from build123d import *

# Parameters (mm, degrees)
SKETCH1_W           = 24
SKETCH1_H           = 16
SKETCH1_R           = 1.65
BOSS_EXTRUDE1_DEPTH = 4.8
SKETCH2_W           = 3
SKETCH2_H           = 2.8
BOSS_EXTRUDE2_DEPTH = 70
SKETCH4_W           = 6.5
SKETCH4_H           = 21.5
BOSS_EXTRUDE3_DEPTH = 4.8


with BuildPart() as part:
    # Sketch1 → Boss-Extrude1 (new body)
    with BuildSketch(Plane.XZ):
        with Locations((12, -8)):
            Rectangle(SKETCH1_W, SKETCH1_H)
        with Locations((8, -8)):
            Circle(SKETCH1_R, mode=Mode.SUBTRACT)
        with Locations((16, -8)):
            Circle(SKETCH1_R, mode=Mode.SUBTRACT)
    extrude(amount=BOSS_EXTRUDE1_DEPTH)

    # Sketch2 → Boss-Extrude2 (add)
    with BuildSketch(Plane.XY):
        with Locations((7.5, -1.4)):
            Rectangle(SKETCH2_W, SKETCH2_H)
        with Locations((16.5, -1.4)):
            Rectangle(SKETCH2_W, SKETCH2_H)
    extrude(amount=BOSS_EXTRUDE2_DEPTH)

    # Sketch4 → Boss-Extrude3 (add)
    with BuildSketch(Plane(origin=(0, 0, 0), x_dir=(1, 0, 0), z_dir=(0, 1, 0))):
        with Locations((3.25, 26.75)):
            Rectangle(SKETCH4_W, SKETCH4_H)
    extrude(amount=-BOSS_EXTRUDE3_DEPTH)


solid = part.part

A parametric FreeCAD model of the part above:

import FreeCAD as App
import Part
import Sketcher

doc = App.newDocument("Part")
body = doc.addObject("PartDesign::Body", "Body")

# Sketch on XZ plane
sketch1 = doc.addObject("Sketcher::SketchObject", "Sketch")
body.addObject(sketch1)
sketch1.AttachmentSupport = (doc.XZ_Plane, [""])
sketch1.MapMode = "FlatFace"
sketch1.addGeometry([
    Part.LineSegment(App.Vector(0, 0, 0), App.Vector(0, -16, 0)),  # 0
    Part.LineSegment(App.Vector(0, -16, 0), App.Vector(24, -16, 0)),  # 1
    Part.LineSegment(App.Vector(24, -16, 0), App.Vector(24, 0, 0)),  # 2
    Part.LineSegment(App.Vector(24, 0, 0), App.Vector(0, 0, 0)),  # 3
    Part.Circle(App.Vector(8, -8, 0), App.Vector(0, 0, 1), 1.6),  # 4
    Part.Circle(App.Vector(16, -8, 0), App.Vector(0, 0, 1), 1.6),  # 5
], False)
sketch1.addConstraint([
    Sketcher.Constraint("Coincident", 0, 2, 1, 1),
    Sketcher.Constraint("Coincident", 1, 2, 2, 1),
    Sketcher.Constraint("Coincident", 2, 2, 3, 1),
    Sketcher.Constraint("Coincident", 3, 2, 0, 1),
    Sketcher.Constraint("Vertical", 0),
    Sketcher.Constraint("Horizontal", 1),
    Sketcher.Constraint("Vertical", 2),
    Sketcher.Constraint("Horizontal", 3),
    Sketcher.Constraint("Coincident", 3, 2, -1, 1),
    Sketcher.Constraint("Equal", 4, 5),
    Sketcher.Constraint("Horizontal", 4, 3, 5, 3),
    Sketcher.Constraint("Diameter", 4, 3.3),
    Sketcher.Constraint("DistanceX", 1, 1, 1, 2, 24.0),
    Sketcher.Constraint("DistanceY", 0, 2, 0, 1, 16.0),
    Sketcher.Constraint("DistanceX", -1, 1, 4, 3, 8.0),
    Sketcher.Constraint("DistanceY", 4, 3, -1, 1, 8.0),
    Sketcher.Constraint("DistanceX", -1, 1, 5, 3, 16.0),
])
pad1 = doc.addObject("PartDesign::Pad", "Pad")
body.addObject(pad1)
pad1.Profile = sketch1
pad1.Length = 4.8

# Sketch on XY plane
sketch2 = doc.addObject("Sketcher::SketchObject", "Sketch001")
body.addObject(sketch2)
sketch2.AttachmentSupport = (doc.XY_Plane, [""])
sketch2.MapMode = "FlatFace"
sketch2.addGeometry([
    Part.LineSegment(App.Vector(6, 0, 0), App.Vector(6, -2.8, 0)),  # 0
    Part.LineSegment(App.Vector(6, -2.8, 0), App.Vector(9, -2.8, 0)),  # 1
    Part.LineSegment(App.Vector(9, -2.8, 0), App.Vector(9, 0, 0)),  # 2
    Part.LineSegment(App.Vector(9, 0, 0), App.Vector(6, 0, 0)),  # 3
    Part.LineSegment(App.Vector(15, 0, 0), App.Vector(15, -2.8, 0)),  # 4
    Part.LineSegment(App.Vector(15, -2.8, 0), App.Vector(18, -2.8, 0)),  # 5
    Part.LineSegment(App.Vector(18, -2.8, 0), App.Vector(18, 0, 0)),  # 6
    Part.LineSegment(App.Vector(18, 0, 0), App.Vector(15, 0, 0)),  # 7
], False)
sketch2.addConstraint([
    Sketcher.Constraint("Coincident", 0, 2, 1, 1),
    Sketcher.Constraint("Coincident", 1, 2, 2, 1),
    Sketcher.Constraint("Coincident", 2, 2, 3, 1),
    Sketcher.Constraint("Coincident", 3, 2, 0, 1),
    Sketcher.Constraint("Coincident", 4, 2, 5, 1),
    Sketcher.Constraint("Coincident", 5, 2, 6, 1),
    Sketcher.Constraint("Coincident", 6, 2, 7, 1),
    Sketcher.Constraint("Coincident", 7, 2, 4, 1),
    Sketcher.Constraint("Vertical", 0),
    Sketcher.Constraint("Horizontal", 1),
    Sketcher.Constraint("Vertical", 2),
    Sketcher.Constraint("Horizontal", 3),
    Sketcher.Constraint("Vertical", 4),
    Sketcher.Constraint("Horizontal", 5),
    Sketcher.Constraint("Vertical", 6),
    Sketcher.Constraint("Horizontal", 7),
    Sketcher.Constraint("PointOnObject", 2, 2, -1),
    Sketcher.Constraint("PointOnObject", 6, 2, -1),
    Sketcher.Constraint("Horizontal", 1, 2, 4, 2),
    Sketcher.Constraint("Equal", 3, 5),
    Sketcher.Constraint("DistanceX", 1, 1, 1, 2, 3.0),
    Sketcher.Constraint("DistanceY", 0, 2, 0, 1, 2.8),
    Sketcher.Constraint("DistanceX", -1, 1, 0, 2, 6.0),
    Sketcher.Constraint("DistanceX", -1, 1, 4, 2, 15.0),
])
pad2 = doc.addObject("PartDesign::Pad", "Pad001")
body.addObject(pad2)
pad2.Profile = sketch2
pad2.Length = 70

# Sketch on XZ plane
sketch3 = doc.addObject("Sketcher::SketchObject", "Sketch002")
body.addObject(sketch3)
sketch3.AttachmentSupport = (doc.XZ_Plane, [""])
sketch3.MapMode = "FlatFace"
sketch3.addGeometry([
    Part.LineSegment(App.Vector(0, -38, 0), App.Vector(0, -16, 0)),
    Part.LineSegment(App.Vector(0, -16, 0), App.Vector(6, -16, 0)),
    Part.LineSegment(App.Vector(6, -16, 0), App.Vector(6, -38, 0)),
    Part.LineSegment(App.Vector(6, -38, 0), App.Vector(0, -38, 0)),
], False)
sketch3.addConstraint([
    Sketcher.Constraint("Coincident", 0, 2, 1, 1),
    Sketcher.Constraint("Coincident", 1, 2, 2, 1),
    Sketcher.Constraint("Coincident", 2, 2, 3, 1),
    Sketcher.Constraint("Coincident", 3, 2, 0, 1),
    Sketcher.Constraint("Vertical", 0),
    Sketcher.Constraint("Horizontal", 1),
    Sketcher.Constraint("Vertical", 2),
    Sketcher.Constraint("Horizontal", 3),
    Sketcher.Constraint("PointOnObject", 0, 2, -2),
    Sketcher.Constraint("DistanceX", 1, 1, 1, 2, 6.5),
    Sketcher.Constraint("DistanceY", 0, 1, 0, 2, 21.5),
    Sketcher.Constraint("DistanceY", 0, 2, -1, 1, 16.0),
])
pad3 = doc.addObject("PartDesign::Pad", "Pad002")
body.addObject(pad3)
pad3.Profile = sketch3
pad3.Length = 4.8

doc.recompute()
